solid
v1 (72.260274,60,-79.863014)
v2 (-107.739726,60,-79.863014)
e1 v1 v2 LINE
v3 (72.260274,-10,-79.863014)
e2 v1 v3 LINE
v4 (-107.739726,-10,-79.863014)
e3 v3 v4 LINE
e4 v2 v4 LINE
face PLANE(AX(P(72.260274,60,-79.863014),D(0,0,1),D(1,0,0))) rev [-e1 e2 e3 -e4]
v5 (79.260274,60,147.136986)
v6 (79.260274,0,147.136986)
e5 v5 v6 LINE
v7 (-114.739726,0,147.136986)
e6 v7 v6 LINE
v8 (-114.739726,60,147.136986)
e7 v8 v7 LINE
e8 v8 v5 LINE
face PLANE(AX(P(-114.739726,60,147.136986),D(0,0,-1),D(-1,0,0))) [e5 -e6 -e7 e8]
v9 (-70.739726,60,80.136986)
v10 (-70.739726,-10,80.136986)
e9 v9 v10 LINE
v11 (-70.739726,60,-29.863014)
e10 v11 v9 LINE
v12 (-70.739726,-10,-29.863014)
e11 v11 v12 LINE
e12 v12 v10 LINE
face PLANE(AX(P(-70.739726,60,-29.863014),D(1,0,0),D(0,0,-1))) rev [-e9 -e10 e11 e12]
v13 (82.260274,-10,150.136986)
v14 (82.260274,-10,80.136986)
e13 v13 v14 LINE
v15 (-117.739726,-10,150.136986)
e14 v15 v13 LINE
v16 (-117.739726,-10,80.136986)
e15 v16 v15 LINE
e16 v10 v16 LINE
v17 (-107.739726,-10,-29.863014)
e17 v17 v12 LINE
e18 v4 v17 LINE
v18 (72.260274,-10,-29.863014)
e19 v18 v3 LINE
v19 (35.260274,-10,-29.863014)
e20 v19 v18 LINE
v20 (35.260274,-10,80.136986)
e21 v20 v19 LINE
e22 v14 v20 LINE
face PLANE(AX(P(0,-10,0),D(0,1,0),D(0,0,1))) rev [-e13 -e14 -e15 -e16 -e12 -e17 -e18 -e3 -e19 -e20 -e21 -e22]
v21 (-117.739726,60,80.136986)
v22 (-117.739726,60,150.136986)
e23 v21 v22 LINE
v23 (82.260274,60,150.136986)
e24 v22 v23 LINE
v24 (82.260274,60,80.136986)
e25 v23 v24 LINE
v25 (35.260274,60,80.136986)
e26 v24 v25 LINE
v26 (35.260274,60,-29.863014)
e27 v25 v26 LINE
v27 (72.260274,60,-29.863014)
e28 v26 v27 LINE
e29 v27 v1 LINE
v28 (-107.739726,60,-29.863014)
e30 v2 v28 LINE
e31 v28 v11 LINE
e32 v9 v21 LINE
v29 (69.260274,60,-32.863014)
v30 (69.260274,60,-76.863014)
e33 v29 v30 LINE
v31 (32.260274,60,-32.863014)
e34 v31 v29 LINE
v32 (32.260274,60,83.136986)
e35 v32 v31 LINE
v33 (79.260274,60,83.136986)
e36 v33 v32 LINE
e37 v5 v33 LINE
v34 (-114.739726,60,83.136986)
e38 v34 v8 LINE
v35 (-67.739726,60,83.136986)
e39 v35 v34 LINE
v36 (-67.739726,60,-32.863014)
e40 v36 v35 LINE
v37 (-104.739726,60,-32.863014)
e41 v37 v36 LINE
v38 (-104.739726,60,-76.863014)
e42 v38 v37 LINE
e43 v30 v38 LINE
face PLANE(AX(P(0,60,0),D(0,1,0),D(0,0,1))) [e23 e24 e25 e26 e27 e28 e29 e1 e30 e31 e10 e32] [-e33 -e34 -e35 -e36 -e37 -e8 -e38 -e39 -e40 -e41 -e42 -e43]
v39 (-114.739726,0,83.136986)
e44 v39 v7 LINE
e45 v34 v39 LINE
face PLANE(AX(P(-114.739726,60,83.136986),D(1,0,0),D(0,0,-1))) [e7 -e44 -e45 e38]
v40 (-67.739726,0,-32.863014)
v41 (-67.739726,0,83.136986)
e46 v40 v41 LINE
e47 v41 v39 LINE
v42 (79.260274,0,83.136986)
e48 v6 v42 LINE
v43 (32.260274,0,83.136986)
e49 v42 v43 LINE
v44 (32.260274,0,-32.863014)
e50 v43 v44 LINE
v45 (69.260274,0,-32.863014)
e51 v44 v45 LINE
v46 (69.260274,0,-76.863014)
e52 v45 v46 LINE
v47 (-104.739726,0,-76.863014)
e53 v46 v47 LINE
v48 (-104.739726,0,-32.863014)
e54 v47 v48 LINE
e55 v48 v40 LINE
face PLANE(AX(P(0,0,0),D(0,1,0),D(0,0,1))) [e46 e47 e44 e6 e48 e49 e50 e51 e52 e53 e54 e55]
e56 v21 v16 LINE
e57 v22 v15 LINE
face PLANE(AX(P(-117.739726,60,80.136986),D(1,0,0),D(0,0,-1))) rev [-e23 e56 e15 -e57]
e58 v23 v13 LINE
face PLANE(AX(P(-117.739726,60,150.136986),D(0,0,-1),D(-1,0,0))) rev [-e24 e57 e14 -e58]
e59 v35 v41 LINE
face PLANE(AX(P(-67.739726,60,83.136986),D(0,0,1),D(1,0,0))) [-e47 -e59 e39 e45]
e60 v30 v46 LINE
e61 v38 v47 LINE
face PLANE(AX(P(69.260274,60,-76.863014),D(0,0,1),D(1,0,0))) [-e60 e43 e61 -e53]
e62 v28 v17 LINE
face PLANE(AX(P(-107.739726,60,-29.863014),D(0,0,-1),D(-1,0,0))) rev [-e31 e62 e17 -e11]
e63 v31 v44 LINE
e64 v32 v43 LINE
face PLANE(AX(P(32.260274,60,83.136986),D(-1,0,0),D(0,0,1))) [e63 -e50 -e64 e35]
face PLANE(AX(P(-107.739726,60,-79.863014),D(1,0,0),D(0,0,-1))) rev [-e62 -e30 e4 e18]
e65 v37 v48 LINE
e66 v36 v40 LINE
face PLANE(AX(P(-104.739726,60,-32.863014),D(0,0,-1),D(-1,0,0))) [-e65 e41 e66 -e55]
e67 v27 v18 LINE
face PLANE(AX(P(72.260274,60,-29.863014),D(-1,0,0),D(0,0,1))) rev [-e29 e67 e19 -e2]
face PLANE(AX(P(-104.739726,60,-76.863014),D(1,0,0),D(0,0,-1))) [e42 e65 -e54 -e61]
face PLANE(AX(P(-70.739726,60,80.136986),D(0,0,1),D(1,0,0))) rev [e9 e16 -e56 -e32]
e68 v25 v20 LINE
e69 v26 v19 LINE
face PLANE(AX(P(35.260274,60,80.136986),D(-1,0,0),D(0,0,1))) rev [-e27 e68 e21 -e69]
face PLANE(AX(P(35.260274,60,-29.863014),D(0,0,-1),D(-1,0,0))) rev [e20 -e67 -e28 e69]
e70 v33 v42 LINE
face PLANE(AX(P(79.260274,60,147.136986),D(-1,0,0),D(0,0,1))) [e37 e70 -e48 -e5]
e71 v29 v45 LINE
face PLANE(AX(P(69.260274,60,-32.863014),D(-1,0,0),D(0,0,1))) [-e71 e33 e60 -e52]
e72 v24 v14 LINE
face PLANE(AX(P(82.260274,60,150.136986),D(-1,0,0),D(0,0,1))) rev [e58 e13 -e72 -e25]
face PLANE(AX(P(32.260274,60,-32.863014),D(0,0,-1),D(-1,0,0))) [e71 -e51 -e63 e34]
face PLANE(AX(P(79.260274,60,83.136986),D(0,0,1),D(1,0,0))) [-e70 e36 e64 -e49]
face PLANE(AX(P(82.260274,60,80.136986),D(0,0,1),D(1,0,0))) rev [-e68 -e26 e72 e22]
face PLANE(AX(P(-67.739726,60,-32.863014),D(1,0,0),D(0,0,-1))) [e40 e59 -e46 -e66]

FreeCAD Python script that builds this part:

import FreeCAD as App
import Part
import Sketcher
from FreeCAD import Vector
Q = App.Units.Quantity


def add_polygon(sketch, points):
    """Adds a closed chain of lines whose ends are joined by coincident constraints."""
    first, n = sketch.GeometryCount, len(points)
    for a, b in zip(points, points[1:] + points[:1]):
        sketch.addGeometry(Part.LineSegment(App.Vector(*a, 0), App.Vector(*b, 0)), False)
    for i in range(n):
        sketch.addConstraint(Sketcher.Constraint("Coincident", first + i, 2, first + (i + 1) % n, 1))

doc = App.newDocument("Part")
body = doc.addObject("PartDesign::Body", "Body")

sketch1 = body.newObject("Sketcher::SketchObject", "Sketch")
sketch1.AttachmentSupport = (doc.getObject("XZ_Plane"), [""])
sketch1.MapMode = "FlatFace"
add_polygon(sketch1, [(72, -80), (-108, -80), (-108, -30), (-71, -30), (-71, 80), (-118, 80), (-118, 150), (82, 150), (82, 80), (35, 80), (35, -30), (72, -30)])
add_polygon(sketch1, [(-105, -77), (69, -77), (69, -33), (32, -33), (32, 83), (79, 83), (79, 147), (-115, 147), (-115, 83), (-68, 83), (-68, -33), (-105, -33)])
sketch1.addConstraint([
    Sketcher.Constraint("Horizontal", 0),
    Sketcher.Constraint("Vertical", 1),
    Sketcher.Constraint("Horizontal", 2),
    Sketcher.Constraint("Vertical", 3),
    Sketcher.Constraint("Horizontal", 4),
    Sketcher.Constraint("Vertical", 5),
    Sketcher.Constraint("Horizontal", 6),
    Sketcher.Constraint("Vertical", 7),
    Sketcher.Constraint("Horizontal", 8),
    Sketcher.Constraint("Vertical", 9),
    Sketcher.Constraint("Horizontal", 10),
    Sketcher.Constraint("Vertical", 11),
    Sketcher.Constraint("Horizontal", 12),
    Sketcher.Constraint("Vertical", 13),
    Sketcher.Constraint("Horizontal", 14),
    Sketcher.Constraint("Vertical", 15),
    Sketcher.Constraint("Horizontal", 16),
    Sketcher.Constraint("Vertical", 17),
    Sketcher.Constraint("Horizontal", 18),
    Sketcher.Constraint("Vertical", 19),
    Sketcher.Constraint("Horizontal", 20),
    Sketcher.Constraint("Vertical", 21),
    Sketcher.Constraint("Horizontal", 22),
    Sketcher.Constraint("Vertical", 23),
    Sketcher.Constraint("Horizontal", 4, 2, 7, 2),
    Sketcher.Constraint("Horizontal", 2, 2, 9, 2),
    Sketcher.Constraint("Horizontal", 16, 2, 19, 2),
    Sketcher.Constraint("Horizontal", 14, 2, 21, 2),
    Sketcher.Constraint("Equal", 4, 8),
    Sketcher.Constraint("Equal", 2, 10),
    Sketcher.Constraint("Equal", 10, 14),
    Sketcher.Constraint("Equal", 8, 16),
    Sketcher.Constraint("Equal", 16, 20),
    Sketcher.Constraint("Equal", 14, 22),
    Sketcher.Constraint("DistanceX", 0, 2, 0, 1, Q("180 mm")),
    Sketcher.Constraint("DistanceX", 2, 1, 2, 2, Q("37 mm")),
    Sketcher.Constraint("DistanceX", 4, 2, 4, 1, Q("47 mm")),
    Sketcher.Constraint("DistanceX", 12, 1, 12, 2, Q("174 mm")),
    Sketcher.Constraint("DistanceY", 1, 1, 1, 2, Q("50 mm")),
    Sketcher.Constraint("DistanceY", 3, 1, 3, 2, Q("110 mm")),
    Sketcher.Constraint("DistanceY", 5, 1, 5, 2, Q("70 mm")),
    Sketcher.Constraint("DistanceY", 13, 1, 13, 2, Q("44 mm")),
    Sketcher.Constraint("DistanceY", 15, 1, 15, 2, Q("116 mm")),
    Sketcher.Constraint("DistanceY", 17, 1, 17, 2, Q("64 mm")),
    Sketcher.Constraint("DistanceX", 12, 2, 11, 2, Q("3 mm")),
    Sketcher.Constraint("DistanceY", 11, 2, 12, 2, Q("3 mm")),
    Sketcher.Constraint("DistanceX", 0, 2, -1, 1, Q("107.739726 mm")),
    Sketcher.Constraint("DistanceY", 0, 2, -1, 1, Q("79.863014 mm")),
])
pad1 = body.newObject("PartDesign::Pad", "Pad")
pad1.Profile = sketch1
pad1.Length = 60
pad1.Reversed = True

sketch2 = body.newObject("Sketcher::SketchObject", "Sketch001")
sketch2.AttachmentSupport = (doc.getObject("XZ_Plane"), [""])
sketch2.MapMode = "FlatFace"
add_polygon(sketch2, [(72, -30), (72, -80), (-108, -80), (-108, -30), (-71, -30), (-71, 80), (-118, 80), (-118, 150), (82, 150), (82, 80), (35, 80), (35, -30)])
sketch2.addConstraint([
    Sketcher.Constraint("Vertical", 0),
    Sketcher.Constraint("Horizontal", 1),
    Sketcher.Constraint("Vertical", 2),
    Sketcher.Constraint("Horizontal", 3),
    Sketcher.Constraint("Vertical", 4),
    Sketcher.Constraint("Horizontal", 5),
    Sketcher.Constraint("Vertical", 6),
    Sketcher.Constraint("Horizontal", 7),
    Sketcher.Constraint("Vertical", 8),
    Sketcher.Constraint("Horizontal", 9),
    Sketcher.Constraint("Vertical", 10),
    Sketcher.Constraint("Horizontal", 11),
    Sketcher.Constraint("Horizontal", 5, 2, 8, 2),
    Sketcher.Constraint("Horizontal", 3, 2, 10, 2),
    Sketcher.Constraint("Equal", 5, 9),
    Sketcher.Constraint("Equal", 3, 11),
    Sketcher.Constraint("DistanceX", 1, 2, 1, 1, Q("180 mm")),
    Sketcher.Constraint("DistanceX", 3, 1, 3, 2, Q("37 mm")),
    Sketcher.Constraint("DistanceX", 5, 2, 5, 1, Q("47 mm")),
    Sketcher.Constraint("DistanceY", 0, 2, 0, 1, Q("50 mm")),
    Sketcher.Constraint("DistanceY", 4, 1, 4, 2, Q("110 mm")),
    Sketcher.Constraint("DistanceY", 6, 1, 6, 2, Q("70 mm")),
    Sketcher.Constraint("DistanceX", -1, 1, 0, 2, Q("72.260274 mm")),
    Sketcher.Constraint("DistanceY", 0, 2, -1, 1, Q("79.863014 mm")),
])
pad2 = body.newObject("PartDesign::Pad", "Pad001")
pad2.Profile = sketch2
pad2.Length = 10

doc.recompute()
